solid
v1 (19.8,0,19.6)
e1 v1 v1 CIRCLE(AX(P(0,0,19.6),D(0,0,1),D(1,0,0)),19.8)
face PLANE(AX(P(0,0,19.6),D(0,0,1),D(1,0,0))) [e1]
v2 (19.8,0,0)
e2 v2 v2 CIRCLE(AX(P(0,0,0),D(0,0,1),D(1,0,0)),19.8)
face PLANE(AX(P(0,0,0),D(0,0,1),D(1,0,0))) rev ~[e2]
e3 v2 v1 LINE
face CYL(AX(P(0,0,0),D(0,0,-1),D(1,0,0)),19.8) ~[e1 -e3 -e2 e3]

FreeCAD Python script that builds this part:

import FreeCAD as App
import Part
import Sketcher

doc = App.newDocument("Part")
body = doc.addObject("PartDesign::Body", "Body")

# Sketch on XY plane
sketch1 = body.newObject("Sketcher::SketchObject", "Sketch")
sketch1.AttachmentSupport = (doc.getObject("XY_Plane"), [""])
sketch1.MapMode = "FlatFace"
sketch1.addGeometry(Part.Circle(App.Vector(0, 0, 0), App.Vector(0, 0, 1), 20), False)
sketch1.addConstraint([
    Sketcher.Constraint("Coincident", 0, 3, -1, 1),
    Sketcher.Constraint("Diameter", 0, 39.6),
])
pad1 = body.newObject("PartDesign::Pad", "Pad")
pad1.Profile = sketch1
pad1.Length = 19.6

doc.recompute()
